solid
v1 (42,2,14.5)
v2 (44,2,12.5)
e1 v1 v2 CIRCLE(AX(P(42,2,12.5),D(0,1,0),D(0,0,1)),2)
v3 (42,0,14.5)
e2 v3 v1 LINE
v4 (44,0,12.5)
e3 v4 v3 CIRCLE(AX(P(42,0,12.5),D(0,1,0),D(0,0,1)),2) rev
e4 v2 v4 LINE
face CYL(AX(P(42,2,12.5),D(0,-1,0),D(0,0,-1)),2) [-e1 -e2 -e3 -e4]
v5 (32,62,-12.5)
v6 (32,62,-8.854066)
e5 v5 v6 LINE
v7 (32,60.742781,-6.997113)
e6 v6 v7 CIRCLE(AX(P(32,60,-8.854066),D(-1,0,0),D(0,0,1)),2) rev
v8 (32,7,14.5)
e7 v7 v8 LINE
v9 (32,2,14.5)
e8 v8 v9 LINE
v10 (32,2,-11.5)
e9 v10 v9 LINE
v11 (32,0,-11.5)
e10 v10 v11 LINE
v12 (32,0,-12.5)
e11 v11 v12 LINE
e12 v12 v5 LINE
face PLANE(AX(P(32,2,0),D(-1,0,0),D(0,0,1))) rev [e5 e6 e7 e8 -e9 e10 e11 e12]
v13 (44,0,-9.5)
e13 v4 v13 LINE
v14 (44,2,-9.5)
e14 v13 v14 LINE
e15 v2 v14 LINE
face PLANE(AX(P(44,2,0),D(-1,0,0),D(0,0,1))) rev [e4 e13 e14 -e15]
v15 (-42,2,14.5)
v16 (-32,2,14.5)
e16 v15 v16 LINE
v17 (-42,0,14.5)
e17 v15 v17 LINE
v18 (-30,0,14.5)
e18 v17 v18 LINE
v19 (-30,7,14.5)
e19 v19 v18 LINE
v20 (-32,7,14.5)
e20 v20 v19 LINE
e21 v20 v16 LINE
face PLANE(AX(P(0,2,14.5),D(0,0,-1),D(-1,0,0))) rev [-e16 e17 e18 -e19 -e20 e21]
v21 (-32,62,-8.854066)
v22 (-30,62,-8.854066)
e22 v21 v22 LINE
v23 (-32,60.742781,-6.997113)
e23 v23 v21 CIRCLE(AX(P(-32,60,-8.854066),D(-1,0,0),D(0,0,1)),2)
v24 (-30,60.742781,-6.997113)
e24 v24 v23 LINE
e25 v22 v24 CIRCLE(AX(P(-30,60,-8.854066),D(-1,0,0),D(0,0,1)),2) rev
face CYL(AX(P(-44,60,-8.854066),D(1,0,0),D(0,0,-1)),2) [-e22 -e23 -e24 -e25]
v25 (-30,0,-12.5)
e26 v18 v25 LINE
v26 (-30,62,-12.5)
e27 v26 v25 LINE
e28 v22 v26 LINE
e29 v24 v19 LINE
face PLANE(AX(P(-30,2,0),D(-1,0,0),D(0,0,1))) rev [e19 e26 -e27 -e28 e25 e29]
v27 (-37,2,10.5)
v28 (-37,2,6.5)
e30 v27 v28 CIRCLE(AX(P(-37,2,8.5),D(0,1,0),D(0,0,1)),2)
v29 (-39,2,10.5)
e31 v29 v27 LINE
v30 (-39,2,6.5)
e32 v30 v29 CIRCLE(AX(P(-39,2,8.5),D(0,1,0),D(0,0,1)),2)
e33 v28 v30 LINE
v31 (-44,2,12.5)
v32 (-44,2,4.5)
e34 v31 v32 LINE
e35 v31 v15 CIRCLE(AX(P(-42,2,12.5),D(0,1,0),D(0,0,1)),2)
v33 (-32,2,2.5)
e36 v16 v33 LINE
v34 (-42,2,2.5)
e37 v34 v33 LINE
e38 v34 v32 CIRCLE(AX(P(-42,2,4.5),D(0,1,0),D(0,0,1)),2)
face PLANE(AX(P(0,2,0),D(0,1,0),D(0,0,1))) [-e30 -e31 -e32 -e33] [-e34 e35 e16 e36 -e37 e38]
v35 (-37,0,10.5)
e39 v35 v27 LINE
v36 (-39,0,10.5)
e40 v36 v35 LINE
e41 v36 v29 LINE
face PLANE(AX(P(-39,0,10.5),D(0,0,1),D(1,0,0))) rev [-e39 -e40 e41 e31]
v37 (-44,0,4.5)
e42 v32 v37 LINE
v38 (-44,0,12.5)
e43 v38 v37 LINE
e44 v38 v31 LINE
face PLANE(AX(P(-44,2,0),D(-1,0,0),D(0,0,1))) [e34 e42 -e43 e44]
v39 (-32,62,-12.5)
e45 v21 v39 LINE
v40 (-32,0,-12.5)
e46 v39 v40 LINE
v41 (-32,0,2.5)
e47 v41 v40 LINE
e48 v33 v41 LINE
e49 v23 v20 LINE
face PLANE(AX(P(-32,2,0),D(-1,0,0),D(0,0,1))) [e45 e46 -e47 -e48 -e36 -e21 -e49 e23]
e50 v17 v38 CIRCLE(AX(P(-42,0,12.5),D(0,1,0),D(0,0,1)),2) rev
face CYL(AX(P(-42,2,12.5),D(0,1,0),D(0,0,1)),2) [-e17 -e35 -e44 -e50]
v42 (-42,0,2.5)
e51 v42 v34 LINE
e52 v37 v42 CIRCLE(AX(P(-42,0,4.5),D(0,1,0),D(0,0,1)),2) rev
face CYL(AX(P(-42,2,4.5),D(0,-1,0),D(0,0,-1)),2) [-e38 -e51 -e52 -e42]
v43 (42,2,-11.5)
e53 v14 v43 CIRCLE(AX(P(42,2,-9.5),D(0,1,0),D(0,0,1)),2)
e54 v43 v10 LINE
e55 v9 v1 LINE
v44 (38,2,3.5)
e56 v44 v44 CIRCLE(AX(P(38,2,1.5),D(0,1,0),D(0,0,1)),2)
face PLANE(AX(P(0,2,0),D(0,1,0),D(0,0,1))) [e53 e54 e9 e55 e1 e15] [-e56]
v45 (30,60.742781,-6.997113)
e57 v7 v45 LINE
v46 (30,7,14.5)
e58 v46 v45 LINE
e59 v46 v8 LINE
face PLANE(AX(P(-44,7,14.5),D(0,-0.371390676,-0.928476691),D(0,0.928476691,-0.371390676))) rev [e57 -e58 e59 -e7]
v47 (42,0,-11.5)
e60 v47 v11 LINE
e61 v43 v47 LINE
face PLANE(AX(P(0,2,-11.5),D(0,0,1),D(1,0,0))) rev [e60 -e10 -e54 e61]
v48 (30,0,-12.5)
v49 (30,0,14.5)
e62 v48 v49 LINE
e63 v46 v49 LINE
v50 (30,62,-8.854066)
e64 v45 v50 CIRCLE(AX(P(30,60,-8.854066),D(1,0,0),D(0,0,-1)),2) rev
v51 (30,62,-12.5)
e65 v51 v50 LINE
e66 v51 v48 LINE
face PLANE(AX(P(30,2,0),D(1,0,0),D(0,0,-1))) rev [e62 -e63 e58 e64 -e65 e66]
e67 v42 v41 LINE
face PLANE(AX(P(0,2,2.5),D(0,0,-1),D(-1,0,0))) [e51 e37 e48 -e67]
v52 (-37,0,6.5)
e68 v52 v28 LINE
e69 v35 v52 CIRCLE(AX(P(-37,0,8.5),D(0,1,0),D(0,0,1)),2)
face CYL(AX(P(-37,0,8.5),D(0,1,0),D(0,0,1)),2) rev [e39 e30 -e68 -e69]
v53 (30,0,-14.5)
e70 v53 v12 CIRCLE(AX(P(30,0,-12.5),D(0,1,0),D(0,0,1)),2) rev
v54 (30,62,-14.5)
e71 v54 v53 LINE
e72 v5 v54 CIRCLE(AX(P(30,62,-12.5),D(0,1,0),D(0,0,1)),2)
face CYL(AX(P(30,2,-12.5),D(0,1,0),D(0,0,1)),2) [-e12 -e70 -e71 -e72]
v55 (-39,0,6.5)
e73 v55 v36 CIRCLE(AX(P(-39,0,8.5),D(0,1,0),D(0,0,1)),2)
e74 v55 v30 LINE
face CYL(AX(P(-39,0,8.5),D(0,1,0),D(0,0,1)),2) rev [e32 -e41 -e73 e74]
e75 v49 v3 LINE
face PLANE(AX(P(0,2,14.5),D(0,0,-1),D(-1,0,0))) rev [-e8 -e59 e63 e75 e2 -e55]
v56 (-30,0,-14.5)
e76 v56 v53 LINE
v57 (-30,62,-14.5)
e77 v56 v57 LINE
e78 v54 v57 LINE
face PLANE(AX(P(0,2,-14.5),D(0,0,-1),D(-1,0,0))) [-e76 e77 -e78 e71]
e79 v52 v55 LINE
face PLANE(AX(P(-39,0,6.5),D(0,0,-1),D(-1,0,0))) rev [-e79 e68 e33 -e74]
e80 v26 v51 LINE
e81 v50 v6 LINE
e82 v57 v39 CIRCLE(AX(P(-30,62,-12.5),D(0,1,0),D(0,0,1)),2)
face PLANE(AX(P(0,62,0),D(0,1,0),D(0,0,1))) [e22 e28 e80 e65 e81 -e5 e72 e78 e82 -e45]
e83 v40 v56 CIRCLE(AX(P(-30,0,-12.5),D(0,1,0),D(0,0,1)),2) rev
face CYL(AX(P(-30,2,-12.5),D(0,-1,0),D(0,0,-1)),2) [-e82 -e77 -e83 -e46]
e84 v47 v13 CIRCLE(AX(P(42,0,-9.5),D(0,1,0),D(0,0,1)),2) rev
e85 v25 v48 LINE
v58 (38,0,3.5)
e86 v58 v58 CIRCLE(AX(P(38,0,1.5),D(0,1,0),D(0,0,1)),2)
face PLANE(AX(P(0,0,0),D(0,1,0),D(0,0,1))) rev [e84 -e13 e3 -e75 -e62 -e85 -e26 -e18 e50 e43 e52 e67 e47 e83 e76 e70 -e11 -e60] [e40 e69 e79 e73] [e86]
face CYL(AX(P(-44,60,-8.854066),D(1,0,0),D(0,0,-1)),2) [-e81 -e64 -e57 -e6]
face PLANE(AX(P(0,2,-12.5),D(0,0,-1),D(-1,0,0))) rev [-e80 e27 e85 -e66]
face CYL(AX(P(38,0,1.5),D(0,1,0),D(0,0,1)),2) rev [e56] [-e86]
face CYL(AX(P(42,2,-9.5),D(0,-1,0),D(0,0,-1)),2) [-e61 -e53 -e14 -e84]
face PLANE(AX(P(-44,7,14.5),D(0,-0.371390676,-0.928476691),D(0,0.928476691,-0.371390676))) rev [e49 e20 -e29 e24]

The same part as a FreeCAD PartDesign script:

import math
import FreeCAD as App
import Part
import Sketcher


def edges_at(feature, points):
    """Names of the edges that pass closest to the given points."""
    edges = feature.Shape.Edges
    near = lambda p: min(range(len(edges)), key=lambda i: edges[i].distToShape(Part.Vertex(*p))[0])
    return sorted({f"Edge{near(p) + 1}" for p in points})

doc = App.newDocument("Part")
body = doc.addObject("PartDesign::Body", "Body")

sketch1 = body.newObject("Sketcher::SketchObject", "Sketch")
sketch1.AttachmentSupport = (doc.getObject("XZ_Plane"), [""])
sketch1.MapMode = "FlatFace"
sketch1.addGeometry([
    Part.LineSegment(App.Vector(-32, -14.5, 0), App.Vector(-32, 2.5, 0)),
    Part.LineSegment(App.Vector(-32, 2.5, 0), App.Vector(-44, 2.5, 0)),
    Part.LineSegment(App.Vector(-44, 2.5, 0), App.Vector(-44, 14.5, 0)),
    Part.LineSegment(App.Vector(-44, 14.5, 0), App.Vector(-30, 14.5, 0)),
    Part.LineSegment(App.Vector(-30, 14.5, 0), App.Vector(-30, -12.5, 0)),
    Part.LineSegment(App.Vector(-30, -12.5, 0), App.Vector(30, -12.5, 0)),
    Part.LineSegment(App.Vector(30, -12.5, 0), App.Vector(30, 14.5, 0)),
    Part.LineSegment(App.Vector(30, 14.5, 0), App.Vector(44, 14.5, 0)),
    Part.LineSegment(App.Vector(44, 14.5, 0), App.Vector(44, -11.5, 0)),
    Part.LineSegment(App.Vector(44, -11.5, 0), App.Vector(32, -11.5, 0)),
    Part.LineSegment(App.Vector(32, -11.5, 0), App.Vector(32, -14.5, 0)),
    Part.LineSegment(App.Vector(32, -14.5, 0), App.Vector(-32, -14.5, 0)),
], False)
sketch1.addConstraint([
    Sketcher.Constraint("Coincident", 0, 2, 1, 1),
    Sketcher.Constraint("Coincident", 1, 2, 2, 1),
    Sketcher.Constraint("Coincident", 2, 2, 3, 1),
    Sketcher.Constraint("Coincident", 3, 2, 4, 1),
    Sketcher.Constraint("Coincident", 4, 2, 5, 1),
    Sketcher.Constraint("Coincident", 5, 2, 6, 1),
    Sketcher.Constraint("Coincident", 6, 2, 7, 1),
    Sketcher.Constraint("Coincident", 7, 2, 8, 1),
    Sketcher.Constraint("Coincident", 8, 2, 9, 1),
    Sketcher.Constraint("Coincident", 9, 2, 10, 1),
    Sketcher.Constraint("Coincident", 10, 2, 11, 1),
    Sketcher.Constraint("Coincident", 11, 2, 0, 1),
    Sketcher.Constraint("Vertical", 0),
    Sketcher.Constraint("Horizontal", 1),
    Sketcher.Constraint("Vertical", 2),
    Sketcher.Constraint("Horizontal", 3),
    Sketcher.Constraint("Vertical", 4),
    Sketcher.Constraint("Horizontal", 5),
    Sketcher.Constraint("Vertical", 6),
    Sketcher.Constraint("Horizontal", 7),
    Sketcher.Constraint("Vertical", 8),
    Sketcher.Constraint("Horizontal", 9),
    Sketcher.Constraint("Vertical", 10),
    Sketcher.Constraint("Horizontal", 11),
    Sketcher.Constraint("Symmetric", 3, 2, 6, 2, -2),
    Sketcher.Constraint("Equal", 3, 7),
    Sketcher.Constraint("Equal", 1, 9),
    Sketcher.Constraint("Equal", 9, 2),
    Sketcher.Constraint("DistanceX", 1, 2, 1, 1, 12.0),
    Sketcher.Constraint("DistanceX", 3, 1, 3, 2, 14.0),
    Sketcher.Constraint("DistanceX", 5, 1, 5, 2, 60.0),
    Sketcher.Constraint("DistanceY", 0, 1, 0, 2, 17.0),
    Sketcher.Constraint("DistanceY", 4, 2, 4, 1, 27.0),
    Sketcher.Constraint("DistanceY", 8, 2, 8, 1, 26.0),
    Sketcher.Constraint("DistanceY", -1, 1, 0, 2, 2.5),
])
pad1 = body.newObject("PartDesign::Pad", "Pad")
pad1.Profile = sketch1
pad1.Length = 2
pad1.Reversed = True

sketch2 = body.newObject("Sketcher::SketchObject", "Sketch001")
sketch2.AttachmentSupport = (doc.getObject("XZ_Plane"), [""])
sketch2.MapMode = "FlatFace"
sketch2.AttachmentOffset = App.Placement(App.Vector(0, 0, -2), App.Rotation())
sketch2.addGeometry([
    Part.LineSegment(App.Vector(-32, -14.5, 0), App.Vector(-32, 14.5, 0)),
    Part.LineSegment(App.Vector(-32, 14.5, 0), App.Vector(-30, 14.5, 0)),
    Part.LineSegment(App.Vector(-30, 14.5, 0), App.Vector(-30, -12.5, 0)),
    Part.LineSegment(App.Vector(-30, -12.5, 0), App.Vector(30, -12.5, 0)),
    Part.LineSegment(App.Vector(30, -12.5, 0), App.Vector(30, 14.5, 0)),
    Part.LineSegment(App.Vector(30, 14.5, 0), App.Vector(32, 14.5, 0)),
    Part.LineSegment(App.Vector(32, 14.5, 0), App.Vector(32, -14.5, 0)),
    Part.LineSegment(App.Vector(32, -14.5, 0), App.Vector(-32, -14.5, 0)),
], False)
sketch2.addConstraint([
    Sketcher.Constraint("Coincident", 0, 2, 1, 1),
    Sketcher.Constraint("Coincident", 1, 2, 2, 1),
    Sketcher.Constraint("Coincident", 2, 2, 3, 1),
    Sketcher.Constraint("Coincident", 3, 2, 4, 1),
    Sketcher.Constraint("Coincident", 4, 2, 5, 1),
    Sketcher.Constraint("Coincident", 5, 2, 6, 1),
    Sketcher.Constraint("Coincident", 6, 2, 7, 1),
    Sketcher.Constraint("Coincident", 7, 2, 0, 1),
    Sketcher.Constraint("Vertical", 0),
    Sketcher.Constraint("Horizontal", 1),
    Sketcher.Constraint("Vertical", 2),
    Sketcher.Constraint("Horizontal", 3),
    Sketcher.Constraint("Vertical", 4),
    Sketcher.Constraint("Horizontal", 5),
    Sketcher.Constraint("Vertical", 6),
    Sketcher.Constraint("Horizontal", 7),
    Sketcher.Constraint("Symmetric", 0, 2, 6, 2, -1, 1),
    Sketcher.Constraint("Symmetric", 1, 2, 4, 2, -2),
    Sketcher.Constraint("DistanceX", 1, 1, 1, 2, 2.0),
    Sketcher.Constraint("DistanceX", 3, 1, 3, 2, 60.0),
    Sketcher.Constraint("DistanceY", 0, 1, 0, 2, 29.0),
    Sketcher.Constraint("DistanceY", 2, 2, 2, 1, 27.0),
])
pad2 = body.newObject("PartDesign::Pad", "Pad001")
pad2.Profile = sketch2
pad2.Length = 60
pad2.Reversed = True

sketch3 = body.newObject("Sketcher::SketchObject", "Sketch002")
sketch3.AttachmentSupport = (doc.getObject("YZ_Plane"), [""])
sketch3.MapMode = "FlatFace"
sketch3.addGeometry([
    Part.LineSegment(App.Vector(7, 14, 0), App.Vector(62, -8, 0)),
    Part.LineSegment(App.Vector(62, -8, 0), App.Vector(62, 14, 0)),
    Part.LineSegment(App.Vector(62, 14, 0), App.Vector(7, 14, 0)),
], False)
sketch3.addConstraint([
    Sketcher.Constraint("Coincident", 0, 2, 1, 1),
    Sketcher.Constraint("Coincident", 1, 2, 2, 1),
    Sketcher.Constraint("Coincident", 2, 2, 0, 1),
    Sketcher.Constraint("Vertical", 1),
    Sketcher.Constraint("Horizontal", 2),
    Sketcher.Constraint("DistanceX", 2, 2, 2, 1, 55.0),
    Sketcher.Constraint("DistanceY", 1, 1, 1, 2, 22.0),
    Sketcher.Constraint("DistanceX", -1, 1, 0, 2, 62.0),
    Sketcher.Constraint("DistanceY", 0, 2, -1, 1, 7.5),
])
pocket1 = body.newObject("PartDesign::Pocket", "Pocket")
pocket1.Profile = sketch3
pocket1.Type = "ThroughAll"
pocket1.Midplane = True

sketch4 = body.newObject("Sketcher::SketchObject", "Sketch003")
sketch4.AttachmentSupport = (doc.getObject("XZ_Plane"), [""])
sketch4.MapMode = "FlatFace"
sketch4.AttachmentOffset = App.Placement(App.Vector(0, 0, -2), App.Rotation())
sketch4.addGeometry([
    Part.Circle(App.Vector(38, 1.5, 0), App.Vector(0, 0, 1), 2),
    Part.LineSegment(App.Vector(-37, 6.5, 0), App.Vector(-39, 6.5, 0)),
    Part.ArcOfCircle(Part.Circle(App.Vector(-39, 8.5, 0), App.Vector(0, 0, 1), 2), math.radians(90), math.radians(270)),
    Part.LineSegment(App.Vector(-39, 10.5, 0), App.Vector(-37, 10.5, 0)),
    Part.ArcOfCircle(Part.Circle(App.Vector(-37, 8.5, 0), App.Vector(0, 0, 1), 2), math.radians(-90), math.radians(90)),
], False)
sketch4.addConstraint([
    Sketcher.Constraint("Tangent", 1, 2, 2, 2),
    Sketcher.Constraint("Tangent", 2, 1, 3, 1),
    Sketcher.Constraint("Tangent", 3, 2, 4, 2),
    Sketcher.Constraint("Tangent", 4, 1, 1, 1),
    Sketcher.Constraint("Horizontal", 1),
    Sketcher.Constraint("Horizontal", 3),
    Sketcher.Constraint("Equal", 0, 2),
    Sketcher.Constraint("Diameter", 0, 4.0),
    Sketcher.Constraint("DistanceX", 1, 2, 1, 1, 2.0),
    Sketcher.Constraint("DistanceX", -1, 1, 0, 3, 38.0),
    Sketcher.Constraint("DistanceX", 2, 3, -1, 1, 39.0),
    Sketcher.Constraint("DistanceY", 0, 3, 2, 3, 7.0),
    Sketcher.Constraint("DistanceY", -1, 1, 0, 3, 1.5),
])
pocket2 = body.newObject("PartDesign::Pocket", "Pocket001")
pocket2.Profile = sketch4
pocket2.Type = "ThroughAll"
pocket2.Reversed = True
doc.recompute()

fillet = body.newObject("PartDesign::Fillet", "Fillet")
fillet.Base = (pocket2, edges_at(pocket2, [
    (44, 1, -11.5),
    (44, 1, 14.5),
    (-44, 1, 14.5),
    (-44, 1, 2.5),
    (-32, 31, -14.5),
    (32, 31, -14.5),
    (-31, 62, -7.5),
    (31, 62, -7.5),
]))
fillet.Radius = 2

doc.recompute()
